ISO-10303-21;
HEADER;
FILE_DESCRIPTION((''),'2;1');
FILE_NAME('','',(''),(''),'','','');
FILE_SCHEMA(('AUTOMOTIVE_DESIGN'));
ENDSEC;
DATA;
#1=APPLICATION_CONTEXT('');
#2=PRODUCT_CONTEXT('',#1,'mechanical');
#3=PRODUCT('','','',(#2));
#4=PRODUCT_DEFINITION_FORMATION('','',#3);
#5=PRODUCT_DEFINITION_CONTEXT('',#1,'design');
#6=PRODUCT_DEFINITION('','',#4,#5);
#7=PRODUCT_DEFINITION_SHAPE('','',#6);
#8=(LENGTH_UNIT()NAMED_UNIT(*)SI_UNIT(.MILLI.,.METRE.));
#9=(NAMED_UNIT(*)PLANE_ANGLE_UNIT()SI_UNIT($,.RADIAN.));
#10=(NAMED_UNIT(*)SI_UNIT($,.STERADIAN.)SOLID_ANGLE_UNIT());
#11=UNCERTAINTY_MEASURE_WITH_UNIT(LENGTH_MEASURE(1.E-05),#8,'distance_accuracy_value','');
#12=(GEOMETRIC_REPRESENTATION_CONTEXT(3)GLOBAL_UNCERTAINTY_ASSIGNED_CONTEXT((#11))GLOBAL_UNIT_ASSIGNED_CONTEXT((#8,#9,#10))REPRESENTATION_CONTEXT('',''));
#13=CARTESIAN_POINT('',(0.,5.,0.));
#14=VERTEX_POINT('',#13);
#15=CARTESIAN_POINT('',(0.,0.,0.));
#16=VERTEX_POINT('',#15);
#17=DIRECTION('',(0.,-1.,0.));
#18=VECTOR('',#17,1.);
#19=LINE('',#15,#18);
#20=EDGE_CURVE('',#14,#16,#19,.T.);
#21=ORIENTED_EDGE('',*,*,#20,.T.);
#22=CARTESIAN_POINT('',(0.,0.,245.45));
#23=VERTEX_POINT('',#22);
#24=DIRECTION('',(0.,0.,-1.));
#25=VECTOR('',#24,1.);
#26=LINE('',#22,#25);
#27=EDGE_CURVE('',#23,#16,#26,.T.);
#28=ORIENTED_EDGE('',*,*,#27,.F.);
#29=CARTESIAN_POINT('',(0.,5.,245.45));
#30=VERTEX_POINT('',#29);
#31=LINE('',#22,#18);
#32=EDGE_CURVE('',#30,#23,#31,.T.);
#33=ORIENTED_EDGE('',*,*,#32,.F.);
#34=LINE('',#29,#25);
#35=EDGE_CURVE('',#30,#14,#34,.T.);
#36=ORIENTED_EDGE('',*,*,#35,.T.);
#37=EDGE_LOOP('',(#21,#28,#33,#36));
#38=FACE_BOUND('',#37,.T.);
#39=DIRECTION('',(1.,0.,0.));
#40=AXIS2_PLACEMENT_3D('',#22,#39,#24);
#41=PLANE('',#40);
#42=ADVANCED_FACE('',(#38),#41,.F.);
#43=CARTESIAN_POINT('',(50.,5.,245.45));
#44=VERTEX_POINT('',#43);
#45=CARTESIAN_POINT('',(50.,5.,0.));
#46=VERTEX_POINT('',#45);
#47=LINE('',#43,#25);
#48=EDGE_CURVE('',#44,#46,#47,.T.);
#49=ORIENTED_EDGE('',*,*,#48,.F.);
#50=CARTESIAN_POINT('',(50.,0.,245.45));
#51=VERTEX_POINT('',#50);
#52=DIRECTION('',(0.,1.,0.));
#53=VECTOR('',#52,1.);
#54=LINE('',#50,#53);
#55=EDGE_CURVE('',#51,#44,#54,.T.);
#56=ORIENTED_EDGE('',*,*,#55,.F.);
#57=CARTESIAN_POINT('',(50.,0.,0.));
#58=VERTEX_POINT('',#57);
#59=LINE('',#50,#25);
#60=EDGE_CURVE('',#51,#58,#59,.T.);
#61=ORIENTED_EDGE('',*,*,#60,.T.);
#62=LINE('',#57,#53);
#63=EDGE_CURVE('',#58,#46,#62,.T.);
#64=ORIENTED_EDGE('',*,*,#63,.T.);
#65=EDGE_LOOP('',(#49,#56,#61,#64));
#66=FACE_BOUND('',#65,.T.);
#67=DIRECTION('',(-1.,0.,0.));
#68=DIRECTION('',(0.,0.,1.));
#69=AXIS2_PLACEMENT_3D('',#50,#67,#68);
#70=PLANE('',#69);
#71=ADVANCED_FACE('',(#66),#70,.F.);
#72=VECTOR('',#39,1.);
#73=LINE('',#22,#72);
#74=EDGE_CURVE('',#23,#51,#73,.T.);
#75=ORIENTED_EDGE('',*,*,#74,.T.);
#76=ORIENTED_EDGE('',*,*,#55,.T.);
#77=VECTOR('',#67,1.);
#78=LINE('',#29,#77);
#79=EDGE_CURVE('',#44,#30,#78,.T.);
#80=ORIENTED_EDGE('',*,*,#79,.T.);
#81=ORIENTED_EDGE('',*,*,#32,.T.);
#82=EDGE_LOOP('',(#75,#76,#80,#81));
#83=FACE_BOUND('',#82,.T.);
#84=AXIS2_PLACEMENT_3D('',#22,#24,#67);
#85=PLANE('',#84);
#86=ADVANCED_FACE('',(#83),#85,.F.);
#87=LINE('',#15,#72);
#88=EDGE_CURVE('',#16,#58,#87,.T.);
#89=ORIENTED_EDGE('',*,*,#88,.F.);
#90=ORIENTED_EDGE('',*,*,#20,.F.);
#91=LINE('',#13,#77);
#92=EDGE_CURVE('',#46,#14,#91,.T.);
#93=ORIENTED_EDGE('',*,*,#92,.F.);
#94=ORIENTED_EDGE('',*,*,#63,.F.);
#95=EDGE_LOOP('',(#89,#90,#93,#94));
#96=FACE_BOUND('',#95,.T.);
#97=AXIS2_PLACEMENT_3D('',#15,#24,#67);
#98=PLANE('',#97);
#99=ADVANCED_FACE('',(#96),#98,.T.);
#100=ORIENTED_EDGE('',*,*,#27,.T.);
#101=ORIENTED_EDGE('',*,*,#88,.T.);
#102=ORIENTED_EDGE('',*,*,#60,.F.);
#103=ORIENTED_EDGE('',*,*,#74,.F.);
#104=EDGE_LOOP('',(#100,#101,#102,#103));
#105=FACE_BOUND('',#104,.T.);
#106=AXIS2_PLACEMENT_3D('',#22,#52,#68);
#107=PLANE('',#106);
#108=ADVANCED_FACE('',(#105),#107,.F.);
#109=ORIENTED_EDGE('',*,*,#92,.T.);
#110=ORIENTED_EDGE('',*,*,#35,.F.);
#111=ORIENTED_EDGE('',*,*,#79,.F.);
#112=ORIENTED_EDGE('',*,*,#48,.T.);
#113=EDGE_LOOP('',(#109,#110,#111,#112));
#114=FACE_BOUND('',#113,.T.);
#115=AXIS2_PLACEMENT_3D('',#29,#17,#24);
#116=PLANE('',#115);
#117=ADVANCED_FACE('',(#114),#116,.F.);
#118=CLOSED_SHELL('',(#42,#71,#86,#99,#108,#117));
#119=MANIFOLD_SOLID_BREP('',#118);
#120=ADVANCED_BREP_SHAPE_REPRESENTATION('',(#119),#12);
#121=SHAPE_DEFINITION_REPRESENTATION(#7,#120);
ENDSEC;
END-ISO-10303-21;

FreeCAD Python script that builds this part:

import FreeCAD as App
import Part
import Sketcher

V = App.Vector
Q = App.Units.Quantity

doc = App.newDocument("Part")
body = doc.addObject("PartDesign::Body", "Body")

# Sketch on XY plane
sketch1 = body.newObject("Sketcher::SketchObject", "Sketch")
sketch1.AttachmentSupport = (doc.getObject("XY_Plane"), [""])
sketch1.MapMode = "FlatFace"
sketch1.addGeometry(Part.LineSegment(V(0, 5, 0), V(0, 0, 0)), False)
sketch1.addGeometry(Part.LineSegment(V(0, 0, 0), V(50, 0, 0)), False)
sketch1.addGeometry(Part.LineSegment(V(50, 0, 0), V(50, 5, 0)), False)
sketch1.addGeometry(Part.LineSegment(V(50, 5, 0), V(0, 5, 0)), False)
sketch1.addConstraint(Sketcher.Constraint("Coincident", 0, 2, 1, 1))
sketch1.addConstraint(Sketcher.Constraint("Coincident", 1, 2, 2, 1))
sketch1.addConstraint(Sketcher.Constraint("Coincident", 2, 2, 3, 1))
sketch1.addConstraint(Sketcher.Constraint("Coincident", 3, 2, 0, 1))
sketch1.addConstraint(Sketcher.Constraint("Vertical", 0))
sketch1.addConstraint(Sketcher.Constraint("Horizontal", 1))
sketch1.addConstraint(Sketcher.Constraint("Vertical", 2))
sketch1.addConstraint(Sketcher.Constraint("Horizontal", 3))
sketch1.addConstraint(Sketcher.Constraint("Coincident", 0, 2, -1, 1))
sketch1.addConstraint(Sketcher.Constraint("DistanceX", 1, 1, 1, 2, Q("50 mm")))
sketch1.addConstraint(Sketcher.Constraint("DistanceY", 0, 2, 0, 1, Q("5 mm")))
pad1 = body.newObject("PartDesign::Pad", "Pad")
pad1.Profile = sketch1
pad1.Length = 245.45

doc.recompute()
